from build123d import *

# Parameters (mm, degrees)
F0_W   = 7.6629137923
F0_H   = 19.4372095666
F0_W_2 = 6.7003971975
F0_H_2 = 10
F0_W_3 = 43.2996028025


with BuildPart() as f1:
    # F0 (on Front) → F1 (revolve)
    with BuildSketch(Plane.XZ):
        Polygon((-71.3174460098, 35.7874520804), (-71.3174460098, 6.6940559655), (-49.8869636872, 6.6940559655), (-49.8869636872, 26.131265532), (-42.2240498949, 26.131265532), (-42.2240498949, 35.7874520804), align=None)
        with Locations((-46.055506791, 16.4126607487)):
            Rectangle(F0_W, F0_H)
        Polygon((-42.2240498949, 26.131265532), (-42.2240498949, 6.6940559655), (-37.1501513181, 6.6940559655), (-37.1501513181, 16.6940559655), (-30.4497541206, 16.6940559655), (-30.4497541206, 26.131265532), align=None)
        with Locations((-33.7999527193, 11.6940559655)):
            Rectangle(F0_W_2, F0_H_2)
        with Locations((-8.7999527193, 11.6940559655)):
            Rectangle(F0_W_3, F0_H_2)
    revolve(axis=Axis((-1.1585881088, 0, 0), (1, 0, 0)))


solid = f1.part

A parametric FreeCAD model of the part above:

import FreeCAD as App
import Part
import Sketcher

V = App.Vector
Q = App.Units.Quantity


def add_polygon(sketch, points):
    """Adds a closed chain of lines whose ends are joined by coincident constraints."""
    first, n = sketch.GeometryCount, len(points)
    for a, b in zip(points, points[1:] + points[:1]):
        sketch.addGeometry(Part.LineSegment(App.Vector(*a, 0), App.Vector(*b, 0)), False)
    for i in range(n):
        sketch.addConstraint(Sketcher.Constraint("Coincident", first + i, 2, first + (i + 1) % n, 1))

doc = App.newDocument("Part")
body = doc.addObject("PartDesign::Body", "Body")

# Sketch on XZ plane
sketch1 = doc.addObject("Sketcher::SketchObject", "Sketch")
body.addObject(sketch1)
sketch1.AttachmentSupport = (doc.XZ_Plane, [""])
sketch1.MapMode = "FlatFace"
add_polygon(sketch1, [(-71, 36), (-71, 7), (-50, 7), (-42, 7), (-30, 7), (13, 7), (13, 17), (-30, 17), (-30, 26), (-42, 26), (-42, 36)])  # lines 0-10
sketch1.addConstraint([
    Sketcher.Constraint("Vertical", 0),
    Sketcher.Constraint("Horizontal", 1),
    Sketcher.Constraint("Horizontal", 2),
    Sketcher.Constraint("Horizontal", 3),
    Sketcher.Constraint("Horizontal", 4),
    Sketcher.Constraint("Vertical", 5),
    Sketcher.Constraint("Horizontal", 6),
    Sketcher.Constraint("Vertical", 7),
    Sketcher.Constraint("Horizontal", 8),
    Sketcher.Constraint("Vertical", 9),
    Sketcher.Constraint("Horizontal", 10),
    Sketcher.Constraint("Vertical", 3, 2, 6, 2),
    Sketcher.Constraint("Vertical", 2, 2, 8, 2),
    Sketcher.Constraint("Equal", 10, 0),
    Sketcher.Constraint("DistanceY", 5, 1, 5, 2, Q("10 mm")),
    Sketcher.Constraint("DistanceY", 7, 1, 7, 2, Q("9.43721 mm")),
    Sketcher.Constraint("DistanceX", 2, 2, 4, 2, Q("55.073899 mm")),
    Sketcher.Constraint("DistanceX", 1, 1, 1, 2, Q("21.430482 mm")),
    Sketcher.Constraint("DistanceX", 2, 1, 2, 2, Q("7.662914 mm")),
    Sketcher.Constraint("DistanceX", 3, 1, 3, 2, Q("11.774296 mm")),
    Sketcher.Constraint("DistanceX", 2, 2, -1, 1, Q("42.22405 mm")),
    Sketcher.Constraint("DistanceY", -1, 1, 0, 2, Q("6.694056 mm")),
])
revolution = doc.addObject("PartDesign::Revolution", "Revolution")
body.addObject(revolution)
revolution.Profile = sketch1
revolution.ReferenceAxis = (sketch1, ["H_Axis"])
revolution.Angle = 360

doc.recompute()
